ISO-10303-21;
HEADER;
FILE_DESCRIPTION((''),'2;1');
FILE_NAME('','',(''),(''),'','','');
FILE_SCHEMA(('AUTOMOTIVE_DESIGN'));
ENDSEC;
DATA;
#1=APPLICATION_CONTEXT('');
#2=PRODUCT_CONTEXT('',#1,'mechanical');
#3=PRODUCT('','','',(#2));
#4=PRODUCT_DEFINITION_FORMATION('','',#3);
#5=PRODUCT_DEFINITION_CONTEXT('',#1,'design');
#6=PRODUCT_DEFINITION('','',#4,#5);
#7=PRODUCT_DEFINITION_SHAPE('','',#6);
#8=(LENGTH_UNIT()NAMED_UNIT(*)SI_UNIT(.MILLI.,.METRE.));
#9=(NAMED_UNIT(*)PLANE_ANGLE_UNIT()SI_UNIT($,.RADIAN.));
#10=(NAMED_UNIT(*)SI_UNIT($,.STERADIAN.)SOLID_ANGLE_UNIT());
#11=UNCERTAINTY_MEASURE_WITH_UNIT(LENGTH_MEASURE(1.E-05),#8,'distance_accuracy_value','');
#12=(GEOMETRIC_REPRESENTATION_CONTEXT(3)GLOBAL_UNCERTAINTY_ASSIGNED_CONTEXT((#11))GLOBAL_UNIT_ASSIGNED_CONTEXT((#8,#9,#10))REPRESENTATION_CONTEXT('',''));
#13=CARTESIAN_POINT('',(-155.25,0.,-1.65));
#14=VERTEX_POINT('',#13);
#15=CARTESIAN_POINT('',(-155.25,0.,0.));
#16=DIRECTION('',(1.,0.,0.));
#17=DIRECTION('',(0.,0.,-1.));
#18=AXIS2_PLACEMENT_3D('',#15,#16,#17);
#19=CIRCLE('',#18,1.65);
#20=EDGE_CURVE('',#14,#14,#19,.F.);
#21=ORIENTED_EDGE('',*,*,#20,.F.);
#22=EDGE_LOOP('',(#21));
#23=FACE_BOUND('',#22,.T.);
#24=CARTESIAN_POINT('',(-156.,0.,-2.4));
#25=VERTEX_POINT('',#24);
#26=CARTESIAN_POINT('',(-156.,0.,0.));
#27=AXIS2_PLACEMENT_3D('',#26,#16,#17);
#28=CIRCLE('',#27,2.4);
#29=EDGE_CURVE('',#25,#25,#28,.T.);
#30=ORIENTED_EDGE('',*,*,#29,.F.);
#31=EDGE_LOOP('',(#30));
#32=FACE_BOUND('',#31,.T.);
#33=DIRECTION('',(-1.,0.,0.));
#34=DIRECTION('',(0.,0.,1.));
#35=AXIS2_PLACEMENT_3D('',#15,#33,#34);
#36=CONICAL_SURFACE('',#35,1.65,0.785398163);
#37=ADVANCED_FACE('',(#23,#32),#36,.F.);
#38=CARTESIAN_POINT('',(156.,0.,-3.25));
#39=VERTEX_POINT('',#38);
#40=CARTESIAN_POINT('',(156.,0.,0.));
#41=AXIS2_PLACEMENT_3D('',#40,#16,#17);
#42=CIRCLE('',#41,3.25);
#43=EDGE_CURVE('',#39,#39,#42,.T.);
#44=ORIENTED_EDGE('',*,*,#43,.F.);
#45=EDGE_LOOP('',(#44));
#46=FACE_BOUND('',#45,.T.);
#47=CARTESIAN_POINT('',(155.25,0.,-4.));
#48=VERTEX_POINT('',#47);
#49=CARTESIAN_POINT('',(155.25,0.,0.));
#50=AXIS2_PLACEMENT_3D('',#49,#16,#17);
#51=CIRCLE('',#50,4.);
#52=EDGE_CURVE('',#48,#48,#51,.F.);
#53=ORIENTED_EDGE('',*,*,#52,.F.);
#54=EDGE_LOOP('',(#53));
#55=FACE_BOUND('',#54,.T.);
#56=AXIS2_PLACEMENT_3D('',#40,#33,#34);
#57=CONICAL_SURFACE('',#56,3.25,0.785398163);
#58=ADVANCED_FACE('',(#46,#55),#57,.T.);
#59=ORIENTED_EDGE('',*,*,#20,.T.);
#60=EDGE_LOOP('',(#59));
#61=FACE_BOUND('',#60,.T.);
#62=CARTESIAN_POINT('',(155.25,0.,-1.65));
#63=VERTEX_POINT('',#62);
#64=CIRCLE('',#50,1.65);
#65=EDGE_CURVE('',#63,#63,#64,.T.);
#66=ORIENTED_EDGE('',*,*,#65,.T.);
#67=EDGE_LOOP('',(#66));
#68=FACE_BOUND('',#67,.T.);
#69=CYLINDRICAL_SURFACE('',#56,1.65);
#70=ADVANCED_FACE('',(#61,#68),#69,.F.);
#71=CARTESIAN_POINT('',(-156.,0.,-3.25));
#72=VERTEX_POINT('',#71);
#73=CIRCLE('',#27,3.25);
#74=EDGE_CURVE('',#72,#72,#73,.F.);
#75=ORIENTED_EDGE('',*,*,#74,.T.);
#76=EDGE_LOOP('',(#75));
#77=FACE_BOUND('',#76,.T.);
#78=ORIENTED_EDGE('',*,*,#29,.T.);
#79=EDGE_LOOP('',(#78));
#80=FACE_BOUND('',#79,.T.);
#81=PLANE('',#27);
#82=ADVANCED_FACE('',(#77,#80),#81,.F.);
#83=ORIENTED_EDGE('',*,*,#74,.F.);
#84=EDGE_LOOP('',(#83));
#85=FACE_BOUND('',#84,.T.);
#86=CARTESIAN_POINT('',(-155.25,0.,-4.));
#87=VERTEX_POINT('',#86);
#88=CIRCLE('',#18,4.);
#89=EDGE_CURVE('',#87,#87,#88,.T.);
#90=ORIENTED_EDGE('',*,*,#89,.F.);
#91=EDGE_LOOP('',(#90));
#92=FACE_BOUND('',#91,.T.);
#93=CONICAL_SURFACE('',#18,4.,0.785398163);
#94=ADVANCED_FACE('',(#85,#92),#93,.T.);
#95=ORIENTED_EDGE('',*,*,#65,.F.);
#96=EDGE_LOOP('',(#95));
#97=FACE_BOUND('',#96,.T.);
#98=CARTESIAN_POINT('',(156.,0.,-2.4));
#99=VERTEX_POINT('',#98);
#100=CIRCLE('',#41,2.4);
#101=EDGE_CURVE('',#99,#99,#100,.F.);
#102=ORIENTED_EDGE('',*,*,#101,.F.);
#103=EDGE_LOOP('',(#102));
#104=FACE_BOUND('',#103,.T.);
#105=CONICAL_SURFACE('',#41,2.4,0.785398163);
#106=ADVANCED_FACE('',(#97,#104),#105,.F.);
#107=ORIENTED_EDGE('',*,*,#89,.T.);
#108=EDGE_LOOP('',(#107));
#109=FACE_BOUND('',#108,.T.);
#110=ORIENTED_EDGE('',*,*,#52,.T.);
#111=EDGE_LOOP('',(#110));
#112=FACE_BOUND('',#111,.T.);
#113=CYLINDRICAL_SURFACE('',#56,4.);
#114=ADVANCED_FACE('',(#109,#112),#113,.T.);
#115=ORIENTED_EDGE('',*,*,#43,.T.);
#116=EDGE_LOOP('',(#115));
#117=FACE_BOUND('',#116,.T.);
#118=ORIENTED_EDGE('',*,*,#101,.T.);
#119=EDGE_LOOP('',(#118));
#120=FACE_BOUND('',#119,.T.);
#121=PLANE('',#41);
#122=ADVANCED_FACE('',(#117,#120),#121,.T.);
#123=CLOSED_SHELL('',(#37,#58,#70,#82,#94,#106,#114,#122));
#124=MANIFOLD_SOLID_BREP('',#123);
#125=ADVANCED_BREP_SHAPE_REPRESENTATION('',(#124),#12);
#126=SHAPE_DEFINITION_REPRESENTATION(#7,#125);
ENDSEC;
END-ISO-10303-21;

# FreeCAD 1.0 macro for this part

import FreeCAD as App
import Part
import Sketcher

V = App.Vector


def edges_at(feature, points):
    """Names of the edges that pass closest to the given points."""
    edges = feature.Shape.Edges
    near = lambda p: min(range(len(edges)), key=lambda i: edges[i].distToShape(Part.Vertex(*p))[0])
    return sorted({f"Edge{near(p) + 1}" for p in points})

doc = App.newDocument("Part")
body = doc.addObject("PartDesign::Body", "Body")

# Sketch on YZ plane
sketch1 = body.newObject("Sketcher::SketchObject", "Sketch")
sketch1.AttachmentSupport = (doc.getObject("YZ_Plane"), [""])
sketch1.MapMode = "FlatFace"
sketch1.addGeometry(Part.Circle(V(0, 0, 0), V(0, 0, 1), 4), False)
sketch1.addConstraint(Sketcher.Constraint("Coincident", 0, 3, -1, 1))
sketch1.addConstraint(Sketcher.Constraint("Diameter", 0, 8.0))
pad1 = body.newObject("PartDesign::Pad", "Pad")
pad1.Profile = sketch1
pad1.Length = 312
pad1.Midplane = True

# Sketch on YZ plane
sketch2 = body.newObject("Sketcher::SketchObject", "Sketch001")
sketch2.AttachmentSupport = (doc.getObject("YZ_Plane"), [""])
sketch2.MapMode = "FlatFace"
sketch2.AttachmentOffset = App.Placement(V(0, 0, -156), App.Rotation())
sketch2.addGeometry(Part.Circle(V(0, 0, 0), V(0, 0, 1), 1.6), False)
sketch2.addConstraint(Sketcher.Constraint("Coincident", 0, 3, -1, 1))
sketch2.addConstraint(Sketcher.Constraint("Diameter", 0, 3.3))
pocket1 = body.newObject("PartDesign::Pocket", "Pocket")
pocket1.Profile = sketch2
pocket1.Type = "ThroughAll"
pocket1.Reversed = True
doc.recompute()

chamfer = body.newObject("PartDesign::Chamfer", "Chamfer")
chamfer.Base = (pocket1, edges_at(pocket1, [
    (-156, 0, 4),
    (156, 0, 4),
    (156, 0, -1.65),
    (-156, 0, -1.65),
]))
chamfer.Size = 0.75

doc.recompute()
